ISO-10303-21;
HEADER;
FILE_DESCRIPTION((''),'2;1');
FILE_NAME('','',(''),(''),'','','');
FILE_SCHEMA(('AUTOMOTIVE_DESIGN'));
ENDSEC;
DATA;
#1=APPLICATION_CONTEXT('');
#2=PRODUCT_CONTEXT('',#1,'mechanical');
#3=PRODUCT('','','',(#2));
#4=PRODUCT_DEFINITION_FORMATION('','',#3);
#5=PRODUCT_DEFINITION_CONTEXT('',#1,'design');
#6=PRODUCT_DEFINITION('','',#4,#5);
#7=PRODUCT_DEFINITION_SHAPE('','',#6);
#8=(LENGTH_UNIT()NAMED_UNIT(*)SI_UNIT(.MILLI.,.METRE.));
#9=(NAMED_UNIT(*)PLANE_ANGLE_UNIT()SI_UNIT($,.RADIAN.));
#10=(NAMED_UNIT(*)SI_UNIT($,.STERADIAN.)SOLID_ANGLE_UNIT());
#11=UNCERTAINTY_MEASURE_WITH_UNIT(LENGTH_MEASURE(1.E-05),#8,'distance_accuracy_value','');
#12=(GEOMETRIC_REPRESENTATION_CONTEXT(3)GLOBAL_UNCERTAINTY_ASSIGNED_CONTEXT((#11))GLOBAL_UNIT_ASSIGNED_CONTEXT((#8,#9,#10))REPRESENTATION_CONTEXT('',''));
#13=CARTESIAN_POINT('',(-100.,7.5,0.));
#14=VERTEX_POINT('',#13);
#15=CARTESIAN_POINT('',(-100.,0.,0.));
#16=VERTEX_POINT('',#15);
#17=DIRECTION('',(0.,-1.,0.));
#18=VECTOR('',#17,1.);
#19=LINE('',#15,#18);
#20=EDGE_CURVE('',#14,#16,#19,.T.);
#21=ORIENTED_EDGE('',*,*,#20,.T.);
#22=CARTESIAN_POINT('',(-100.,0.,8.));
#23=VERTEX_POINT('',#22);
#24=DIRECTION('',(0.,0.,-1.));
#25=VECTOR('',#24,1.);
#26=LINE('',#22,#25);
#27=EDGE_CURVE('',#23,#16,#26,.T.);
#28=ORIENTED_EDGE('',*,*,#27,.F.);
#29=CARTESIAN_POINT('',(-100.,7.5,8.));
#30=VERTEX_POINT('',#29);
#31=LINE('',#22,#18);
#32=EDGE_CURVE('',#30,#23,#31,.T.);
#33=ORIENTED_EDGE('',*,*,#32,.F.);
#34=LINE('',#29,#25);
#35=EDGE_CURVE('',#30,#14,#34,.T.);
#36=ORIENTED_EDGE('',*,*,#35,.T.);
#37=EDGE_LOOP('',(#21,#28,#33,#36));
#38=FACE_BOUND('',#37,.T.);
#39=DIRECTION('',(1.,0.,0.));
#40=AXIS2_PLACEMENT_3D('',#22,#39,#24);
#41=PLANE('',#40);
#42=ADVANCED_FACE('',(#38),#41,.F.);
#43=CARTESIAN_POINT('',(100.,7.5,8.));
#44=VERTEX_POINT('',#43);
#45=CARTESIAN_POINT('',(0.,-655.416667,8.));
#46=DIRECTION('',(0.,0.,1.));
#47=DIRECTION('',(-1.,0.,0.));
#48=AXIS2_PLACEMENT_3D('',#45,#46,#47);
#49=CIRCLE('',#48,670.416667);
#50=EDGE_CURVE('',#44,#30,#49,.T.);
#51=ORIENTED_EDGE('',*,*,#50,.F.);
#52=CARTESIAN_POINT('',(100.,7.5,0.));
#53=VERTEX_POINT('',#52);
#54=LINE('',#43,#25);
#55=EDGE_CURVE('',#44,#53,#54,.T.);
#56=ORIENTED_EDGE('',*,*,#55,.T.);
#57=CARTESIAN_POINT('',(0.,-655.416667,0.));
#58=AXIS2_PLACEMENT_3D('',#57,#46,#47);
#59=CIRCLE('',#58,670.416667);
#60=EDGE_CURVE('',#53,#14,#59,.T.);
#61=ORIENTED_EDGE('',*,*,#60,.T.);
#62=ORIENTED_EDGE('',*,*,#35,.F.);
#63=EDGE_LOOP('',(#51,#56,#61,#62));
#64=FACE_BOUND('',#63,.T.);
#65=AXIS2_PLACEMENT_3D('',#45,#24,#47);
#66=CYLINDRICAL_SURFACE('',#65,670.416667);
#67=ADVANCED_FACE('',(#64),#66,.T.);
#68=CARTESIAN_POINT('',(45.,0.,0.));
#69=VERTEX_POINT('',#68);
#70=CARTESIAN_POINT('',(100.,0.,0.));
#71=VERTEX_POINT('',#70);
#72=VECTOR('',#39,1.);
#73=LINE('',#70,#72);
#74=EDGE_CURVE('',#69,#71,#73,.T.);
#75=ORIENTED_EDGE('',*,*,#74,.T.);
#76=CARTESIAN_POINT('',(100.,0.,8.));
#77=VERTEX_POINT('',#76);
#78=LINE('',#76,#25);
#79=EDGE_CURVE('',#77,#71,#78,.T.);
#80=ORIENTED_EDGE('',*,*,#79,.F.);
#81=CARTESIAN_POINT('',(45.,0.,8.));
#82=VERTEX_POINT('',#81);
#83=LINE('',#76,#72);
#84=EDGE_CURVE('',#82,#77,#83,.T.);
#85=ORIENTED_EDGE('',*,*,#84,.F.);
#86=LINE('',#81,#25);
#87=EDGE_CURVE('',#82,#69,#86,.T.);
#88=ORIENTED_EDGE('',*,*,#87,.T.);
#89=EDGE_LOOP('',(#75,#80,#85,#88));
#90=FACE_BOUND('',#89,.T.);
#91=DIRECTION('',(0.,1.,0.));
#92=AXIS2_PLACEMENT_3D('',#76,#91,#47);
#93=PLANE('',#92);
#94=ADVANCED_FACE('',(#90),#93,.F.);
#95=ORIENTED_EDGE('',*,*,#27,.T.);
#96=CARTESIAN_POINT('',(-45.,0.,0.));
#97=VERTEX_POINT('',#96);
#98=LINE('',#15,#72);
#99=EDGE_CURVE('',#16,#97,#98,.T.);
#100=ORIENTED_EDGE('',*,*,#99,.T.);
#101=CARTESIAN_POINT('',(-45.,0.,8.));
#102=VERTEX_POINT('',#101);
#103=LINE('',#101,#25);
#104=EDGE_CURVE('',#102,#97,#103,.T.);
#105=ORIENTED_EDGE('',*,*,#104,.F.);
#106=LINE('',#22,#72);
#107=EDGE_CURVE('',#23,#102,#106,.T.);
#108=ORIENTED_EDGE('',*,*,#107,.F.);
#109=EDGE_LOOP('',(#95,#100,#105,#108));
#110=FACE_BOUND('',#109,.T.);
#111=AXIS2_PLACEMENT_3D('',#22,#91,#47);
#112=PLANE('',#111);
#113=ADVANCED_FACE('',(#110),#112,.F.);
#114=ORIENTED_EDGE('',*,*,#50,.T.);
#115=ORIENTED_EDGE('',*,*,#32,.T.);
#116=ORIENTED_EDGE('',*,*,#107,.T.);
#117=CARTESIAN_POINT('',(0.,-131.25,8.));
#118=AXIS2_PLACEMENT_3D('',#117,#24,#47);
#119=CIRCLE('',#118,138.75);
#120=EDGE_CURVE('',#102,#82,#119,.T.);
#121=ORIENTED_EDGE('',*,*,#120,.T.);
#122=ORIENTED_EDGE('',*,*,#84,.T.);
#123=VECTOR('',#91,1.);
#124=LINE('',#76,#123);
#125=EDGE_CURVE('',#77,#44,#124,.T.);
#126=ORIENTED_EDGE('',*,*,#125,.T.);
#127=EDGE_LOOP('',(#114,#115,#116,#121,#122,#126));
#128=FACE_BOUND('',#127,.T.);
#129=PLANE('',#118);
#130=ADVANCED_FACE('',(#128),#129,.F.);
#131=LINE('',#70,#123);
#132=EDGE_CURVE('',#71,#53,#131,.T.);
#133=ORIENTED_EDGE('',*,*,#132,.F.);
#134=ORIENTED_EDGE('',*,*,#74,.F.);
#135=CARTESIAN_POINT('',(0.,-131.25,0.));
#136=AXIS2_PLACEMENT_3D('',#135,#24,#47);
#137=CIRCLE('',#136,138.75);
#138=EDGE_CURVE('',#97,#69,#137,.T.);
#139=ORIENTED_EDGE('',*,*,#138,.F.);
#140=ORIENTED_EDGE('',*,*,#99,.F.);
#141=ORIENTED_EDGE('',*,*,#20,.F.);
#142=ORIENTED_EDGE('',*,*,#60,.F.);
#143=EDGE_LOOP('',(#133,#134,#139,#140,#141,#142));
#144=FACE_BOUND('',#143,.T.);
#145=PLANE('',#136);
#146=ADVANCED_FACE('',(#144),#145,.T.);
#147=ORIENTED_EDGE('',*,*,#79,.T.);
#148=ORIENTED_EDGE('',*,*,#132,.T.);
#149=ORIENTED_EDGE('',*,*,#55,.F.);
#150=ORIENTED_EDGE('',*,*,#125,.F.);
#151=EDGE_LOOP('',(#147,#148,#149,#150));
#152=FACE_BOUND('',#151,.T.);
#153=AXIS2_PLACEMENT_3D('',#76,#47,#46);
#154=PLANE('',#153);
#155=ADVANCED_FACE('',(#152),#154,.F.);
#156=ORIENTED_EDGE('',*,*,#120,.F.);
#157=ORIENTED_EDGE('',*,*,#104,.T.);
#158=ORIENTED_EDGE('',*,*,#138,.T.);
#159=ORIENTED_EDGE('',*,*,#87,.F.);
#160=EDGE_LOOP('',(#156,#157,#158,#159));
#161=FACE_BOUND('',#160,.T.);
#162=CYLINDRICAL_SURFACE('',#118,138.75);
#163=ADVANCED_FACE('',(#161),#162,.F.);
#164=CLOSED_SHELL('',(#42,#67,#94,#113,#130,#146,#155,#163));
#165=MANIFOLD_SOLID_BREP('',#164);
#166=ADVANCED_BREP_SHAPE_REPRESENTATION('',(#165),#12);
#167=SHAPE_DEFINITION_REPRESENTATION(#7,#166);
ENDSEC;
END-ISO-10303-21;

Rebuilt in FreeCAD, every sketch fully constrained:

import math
import FreeCAD as App
import Part
import Sketcher

doc = App.newDocument("Part")
body = doc.addObject("PartDesign::Body", "Body")

sketch1 = body.newObject("Sketcher::SketchObject", "Sketch")
sketch1.AttachmentSupport = (doc.getObject("XY_Plane"), [""])
sketch1.MapMode = "FlatFace"
sketch1.addGeometry(Part.LineSegment(App.Vector(-100, 8, 0), App.Vector(-100, 0, 0)), False)
sketch1.addGeometry(Part.LineSegment(App.Vector(-100, 0, 0), App.Vector(-45, 0, 0)), False)
sketch1.addGeometry(Part.ArcOfCircle(Part.Circle(App.Vector(0, -131, 0), App.Vector(0, 0, 1), 139), math.radians(71), math.radians(109)), False)
sketch1.addGeometry(Part.LineSegment(App.Vector(45, 0, 0), App.Vector(100, 0, 0)), False)
sketch1.addGeometry(Part.LineSegment(App.Vector(100, 0, 0), App.Vector(100, 8, 0)), False)
sketch1.addGeometry(Part.ArcOfCircle(Part.Circle(App.Vector(0, -655, 0), App.Vector(0, 0, 1), 670), math.radians(81.42), math.radians(98.58)), False)
sketch1.addConstraint(Sketcher.Constraint("Coincident", 0, 2, 1, 1))
sketch1.addConstraint(Sketcher.Constraint("Coincident", 1, 2, 2, 2))
sketch1.addConstraint(Sketcher.Constraint("Coincident", 2, 1, 3, 1))
sketch1.addConstraint(Sketcher.Constraint("Coincident", 3, 2, 4, 1))
sketch1.addConstraint(Sketcher.Constraint("Coincident", 4, 2, 5, 1))
sketch1.addConstraint(Sketcher.Constraint("Coincident", 5, 2, 0, 1))
sketch1.addConstraint(Sketcher.Constraint("Vertical", 0))
sketch1.addConstraint(Sketcher.Constraint("Horizontal", 1))
sketch1.addConstraint(Sketcher.Constraint("Horizontal", 3))
sketch1.addConstraint(Sketcher.Constraint("Vertical", 4))
sketch1.addConstraint(Sketcher.Constraint("Symmetric", 1, 2, 2, 1, -1, 1))
sketch1.addConstraint(Sketcher.Constraint("Symmetric", 0, 2, 3, 2, -2))
sketch1.addConstraint(Sketcher.Constraint("PointOnObject", 5, 3, -2))
sketch1.addConstraint(Sketcher.Constraint("DistanceX", 1, 1, 1, 2, 55.0))
sketch1.addConstraint(Sketcher.Constraint("Radius", 2, 138.75))
sketch1.addConstraint(Sketcher.Constraint("DistanceY", 0, 2, 0, 1, 7.5))
sketch1.addConstraint(Sketcher.Constraint("DistanceX", 0, 2, -1, 1, 100.0))
sketch1.addConstraint(Sketcher.Constraint("Radius", 5, 670.416667))
pad1 = body.newObject("PartDesign::Pad", "Pad")
pad1.Profile = sketch1
pad1.Length = 8

doc.recompute()
